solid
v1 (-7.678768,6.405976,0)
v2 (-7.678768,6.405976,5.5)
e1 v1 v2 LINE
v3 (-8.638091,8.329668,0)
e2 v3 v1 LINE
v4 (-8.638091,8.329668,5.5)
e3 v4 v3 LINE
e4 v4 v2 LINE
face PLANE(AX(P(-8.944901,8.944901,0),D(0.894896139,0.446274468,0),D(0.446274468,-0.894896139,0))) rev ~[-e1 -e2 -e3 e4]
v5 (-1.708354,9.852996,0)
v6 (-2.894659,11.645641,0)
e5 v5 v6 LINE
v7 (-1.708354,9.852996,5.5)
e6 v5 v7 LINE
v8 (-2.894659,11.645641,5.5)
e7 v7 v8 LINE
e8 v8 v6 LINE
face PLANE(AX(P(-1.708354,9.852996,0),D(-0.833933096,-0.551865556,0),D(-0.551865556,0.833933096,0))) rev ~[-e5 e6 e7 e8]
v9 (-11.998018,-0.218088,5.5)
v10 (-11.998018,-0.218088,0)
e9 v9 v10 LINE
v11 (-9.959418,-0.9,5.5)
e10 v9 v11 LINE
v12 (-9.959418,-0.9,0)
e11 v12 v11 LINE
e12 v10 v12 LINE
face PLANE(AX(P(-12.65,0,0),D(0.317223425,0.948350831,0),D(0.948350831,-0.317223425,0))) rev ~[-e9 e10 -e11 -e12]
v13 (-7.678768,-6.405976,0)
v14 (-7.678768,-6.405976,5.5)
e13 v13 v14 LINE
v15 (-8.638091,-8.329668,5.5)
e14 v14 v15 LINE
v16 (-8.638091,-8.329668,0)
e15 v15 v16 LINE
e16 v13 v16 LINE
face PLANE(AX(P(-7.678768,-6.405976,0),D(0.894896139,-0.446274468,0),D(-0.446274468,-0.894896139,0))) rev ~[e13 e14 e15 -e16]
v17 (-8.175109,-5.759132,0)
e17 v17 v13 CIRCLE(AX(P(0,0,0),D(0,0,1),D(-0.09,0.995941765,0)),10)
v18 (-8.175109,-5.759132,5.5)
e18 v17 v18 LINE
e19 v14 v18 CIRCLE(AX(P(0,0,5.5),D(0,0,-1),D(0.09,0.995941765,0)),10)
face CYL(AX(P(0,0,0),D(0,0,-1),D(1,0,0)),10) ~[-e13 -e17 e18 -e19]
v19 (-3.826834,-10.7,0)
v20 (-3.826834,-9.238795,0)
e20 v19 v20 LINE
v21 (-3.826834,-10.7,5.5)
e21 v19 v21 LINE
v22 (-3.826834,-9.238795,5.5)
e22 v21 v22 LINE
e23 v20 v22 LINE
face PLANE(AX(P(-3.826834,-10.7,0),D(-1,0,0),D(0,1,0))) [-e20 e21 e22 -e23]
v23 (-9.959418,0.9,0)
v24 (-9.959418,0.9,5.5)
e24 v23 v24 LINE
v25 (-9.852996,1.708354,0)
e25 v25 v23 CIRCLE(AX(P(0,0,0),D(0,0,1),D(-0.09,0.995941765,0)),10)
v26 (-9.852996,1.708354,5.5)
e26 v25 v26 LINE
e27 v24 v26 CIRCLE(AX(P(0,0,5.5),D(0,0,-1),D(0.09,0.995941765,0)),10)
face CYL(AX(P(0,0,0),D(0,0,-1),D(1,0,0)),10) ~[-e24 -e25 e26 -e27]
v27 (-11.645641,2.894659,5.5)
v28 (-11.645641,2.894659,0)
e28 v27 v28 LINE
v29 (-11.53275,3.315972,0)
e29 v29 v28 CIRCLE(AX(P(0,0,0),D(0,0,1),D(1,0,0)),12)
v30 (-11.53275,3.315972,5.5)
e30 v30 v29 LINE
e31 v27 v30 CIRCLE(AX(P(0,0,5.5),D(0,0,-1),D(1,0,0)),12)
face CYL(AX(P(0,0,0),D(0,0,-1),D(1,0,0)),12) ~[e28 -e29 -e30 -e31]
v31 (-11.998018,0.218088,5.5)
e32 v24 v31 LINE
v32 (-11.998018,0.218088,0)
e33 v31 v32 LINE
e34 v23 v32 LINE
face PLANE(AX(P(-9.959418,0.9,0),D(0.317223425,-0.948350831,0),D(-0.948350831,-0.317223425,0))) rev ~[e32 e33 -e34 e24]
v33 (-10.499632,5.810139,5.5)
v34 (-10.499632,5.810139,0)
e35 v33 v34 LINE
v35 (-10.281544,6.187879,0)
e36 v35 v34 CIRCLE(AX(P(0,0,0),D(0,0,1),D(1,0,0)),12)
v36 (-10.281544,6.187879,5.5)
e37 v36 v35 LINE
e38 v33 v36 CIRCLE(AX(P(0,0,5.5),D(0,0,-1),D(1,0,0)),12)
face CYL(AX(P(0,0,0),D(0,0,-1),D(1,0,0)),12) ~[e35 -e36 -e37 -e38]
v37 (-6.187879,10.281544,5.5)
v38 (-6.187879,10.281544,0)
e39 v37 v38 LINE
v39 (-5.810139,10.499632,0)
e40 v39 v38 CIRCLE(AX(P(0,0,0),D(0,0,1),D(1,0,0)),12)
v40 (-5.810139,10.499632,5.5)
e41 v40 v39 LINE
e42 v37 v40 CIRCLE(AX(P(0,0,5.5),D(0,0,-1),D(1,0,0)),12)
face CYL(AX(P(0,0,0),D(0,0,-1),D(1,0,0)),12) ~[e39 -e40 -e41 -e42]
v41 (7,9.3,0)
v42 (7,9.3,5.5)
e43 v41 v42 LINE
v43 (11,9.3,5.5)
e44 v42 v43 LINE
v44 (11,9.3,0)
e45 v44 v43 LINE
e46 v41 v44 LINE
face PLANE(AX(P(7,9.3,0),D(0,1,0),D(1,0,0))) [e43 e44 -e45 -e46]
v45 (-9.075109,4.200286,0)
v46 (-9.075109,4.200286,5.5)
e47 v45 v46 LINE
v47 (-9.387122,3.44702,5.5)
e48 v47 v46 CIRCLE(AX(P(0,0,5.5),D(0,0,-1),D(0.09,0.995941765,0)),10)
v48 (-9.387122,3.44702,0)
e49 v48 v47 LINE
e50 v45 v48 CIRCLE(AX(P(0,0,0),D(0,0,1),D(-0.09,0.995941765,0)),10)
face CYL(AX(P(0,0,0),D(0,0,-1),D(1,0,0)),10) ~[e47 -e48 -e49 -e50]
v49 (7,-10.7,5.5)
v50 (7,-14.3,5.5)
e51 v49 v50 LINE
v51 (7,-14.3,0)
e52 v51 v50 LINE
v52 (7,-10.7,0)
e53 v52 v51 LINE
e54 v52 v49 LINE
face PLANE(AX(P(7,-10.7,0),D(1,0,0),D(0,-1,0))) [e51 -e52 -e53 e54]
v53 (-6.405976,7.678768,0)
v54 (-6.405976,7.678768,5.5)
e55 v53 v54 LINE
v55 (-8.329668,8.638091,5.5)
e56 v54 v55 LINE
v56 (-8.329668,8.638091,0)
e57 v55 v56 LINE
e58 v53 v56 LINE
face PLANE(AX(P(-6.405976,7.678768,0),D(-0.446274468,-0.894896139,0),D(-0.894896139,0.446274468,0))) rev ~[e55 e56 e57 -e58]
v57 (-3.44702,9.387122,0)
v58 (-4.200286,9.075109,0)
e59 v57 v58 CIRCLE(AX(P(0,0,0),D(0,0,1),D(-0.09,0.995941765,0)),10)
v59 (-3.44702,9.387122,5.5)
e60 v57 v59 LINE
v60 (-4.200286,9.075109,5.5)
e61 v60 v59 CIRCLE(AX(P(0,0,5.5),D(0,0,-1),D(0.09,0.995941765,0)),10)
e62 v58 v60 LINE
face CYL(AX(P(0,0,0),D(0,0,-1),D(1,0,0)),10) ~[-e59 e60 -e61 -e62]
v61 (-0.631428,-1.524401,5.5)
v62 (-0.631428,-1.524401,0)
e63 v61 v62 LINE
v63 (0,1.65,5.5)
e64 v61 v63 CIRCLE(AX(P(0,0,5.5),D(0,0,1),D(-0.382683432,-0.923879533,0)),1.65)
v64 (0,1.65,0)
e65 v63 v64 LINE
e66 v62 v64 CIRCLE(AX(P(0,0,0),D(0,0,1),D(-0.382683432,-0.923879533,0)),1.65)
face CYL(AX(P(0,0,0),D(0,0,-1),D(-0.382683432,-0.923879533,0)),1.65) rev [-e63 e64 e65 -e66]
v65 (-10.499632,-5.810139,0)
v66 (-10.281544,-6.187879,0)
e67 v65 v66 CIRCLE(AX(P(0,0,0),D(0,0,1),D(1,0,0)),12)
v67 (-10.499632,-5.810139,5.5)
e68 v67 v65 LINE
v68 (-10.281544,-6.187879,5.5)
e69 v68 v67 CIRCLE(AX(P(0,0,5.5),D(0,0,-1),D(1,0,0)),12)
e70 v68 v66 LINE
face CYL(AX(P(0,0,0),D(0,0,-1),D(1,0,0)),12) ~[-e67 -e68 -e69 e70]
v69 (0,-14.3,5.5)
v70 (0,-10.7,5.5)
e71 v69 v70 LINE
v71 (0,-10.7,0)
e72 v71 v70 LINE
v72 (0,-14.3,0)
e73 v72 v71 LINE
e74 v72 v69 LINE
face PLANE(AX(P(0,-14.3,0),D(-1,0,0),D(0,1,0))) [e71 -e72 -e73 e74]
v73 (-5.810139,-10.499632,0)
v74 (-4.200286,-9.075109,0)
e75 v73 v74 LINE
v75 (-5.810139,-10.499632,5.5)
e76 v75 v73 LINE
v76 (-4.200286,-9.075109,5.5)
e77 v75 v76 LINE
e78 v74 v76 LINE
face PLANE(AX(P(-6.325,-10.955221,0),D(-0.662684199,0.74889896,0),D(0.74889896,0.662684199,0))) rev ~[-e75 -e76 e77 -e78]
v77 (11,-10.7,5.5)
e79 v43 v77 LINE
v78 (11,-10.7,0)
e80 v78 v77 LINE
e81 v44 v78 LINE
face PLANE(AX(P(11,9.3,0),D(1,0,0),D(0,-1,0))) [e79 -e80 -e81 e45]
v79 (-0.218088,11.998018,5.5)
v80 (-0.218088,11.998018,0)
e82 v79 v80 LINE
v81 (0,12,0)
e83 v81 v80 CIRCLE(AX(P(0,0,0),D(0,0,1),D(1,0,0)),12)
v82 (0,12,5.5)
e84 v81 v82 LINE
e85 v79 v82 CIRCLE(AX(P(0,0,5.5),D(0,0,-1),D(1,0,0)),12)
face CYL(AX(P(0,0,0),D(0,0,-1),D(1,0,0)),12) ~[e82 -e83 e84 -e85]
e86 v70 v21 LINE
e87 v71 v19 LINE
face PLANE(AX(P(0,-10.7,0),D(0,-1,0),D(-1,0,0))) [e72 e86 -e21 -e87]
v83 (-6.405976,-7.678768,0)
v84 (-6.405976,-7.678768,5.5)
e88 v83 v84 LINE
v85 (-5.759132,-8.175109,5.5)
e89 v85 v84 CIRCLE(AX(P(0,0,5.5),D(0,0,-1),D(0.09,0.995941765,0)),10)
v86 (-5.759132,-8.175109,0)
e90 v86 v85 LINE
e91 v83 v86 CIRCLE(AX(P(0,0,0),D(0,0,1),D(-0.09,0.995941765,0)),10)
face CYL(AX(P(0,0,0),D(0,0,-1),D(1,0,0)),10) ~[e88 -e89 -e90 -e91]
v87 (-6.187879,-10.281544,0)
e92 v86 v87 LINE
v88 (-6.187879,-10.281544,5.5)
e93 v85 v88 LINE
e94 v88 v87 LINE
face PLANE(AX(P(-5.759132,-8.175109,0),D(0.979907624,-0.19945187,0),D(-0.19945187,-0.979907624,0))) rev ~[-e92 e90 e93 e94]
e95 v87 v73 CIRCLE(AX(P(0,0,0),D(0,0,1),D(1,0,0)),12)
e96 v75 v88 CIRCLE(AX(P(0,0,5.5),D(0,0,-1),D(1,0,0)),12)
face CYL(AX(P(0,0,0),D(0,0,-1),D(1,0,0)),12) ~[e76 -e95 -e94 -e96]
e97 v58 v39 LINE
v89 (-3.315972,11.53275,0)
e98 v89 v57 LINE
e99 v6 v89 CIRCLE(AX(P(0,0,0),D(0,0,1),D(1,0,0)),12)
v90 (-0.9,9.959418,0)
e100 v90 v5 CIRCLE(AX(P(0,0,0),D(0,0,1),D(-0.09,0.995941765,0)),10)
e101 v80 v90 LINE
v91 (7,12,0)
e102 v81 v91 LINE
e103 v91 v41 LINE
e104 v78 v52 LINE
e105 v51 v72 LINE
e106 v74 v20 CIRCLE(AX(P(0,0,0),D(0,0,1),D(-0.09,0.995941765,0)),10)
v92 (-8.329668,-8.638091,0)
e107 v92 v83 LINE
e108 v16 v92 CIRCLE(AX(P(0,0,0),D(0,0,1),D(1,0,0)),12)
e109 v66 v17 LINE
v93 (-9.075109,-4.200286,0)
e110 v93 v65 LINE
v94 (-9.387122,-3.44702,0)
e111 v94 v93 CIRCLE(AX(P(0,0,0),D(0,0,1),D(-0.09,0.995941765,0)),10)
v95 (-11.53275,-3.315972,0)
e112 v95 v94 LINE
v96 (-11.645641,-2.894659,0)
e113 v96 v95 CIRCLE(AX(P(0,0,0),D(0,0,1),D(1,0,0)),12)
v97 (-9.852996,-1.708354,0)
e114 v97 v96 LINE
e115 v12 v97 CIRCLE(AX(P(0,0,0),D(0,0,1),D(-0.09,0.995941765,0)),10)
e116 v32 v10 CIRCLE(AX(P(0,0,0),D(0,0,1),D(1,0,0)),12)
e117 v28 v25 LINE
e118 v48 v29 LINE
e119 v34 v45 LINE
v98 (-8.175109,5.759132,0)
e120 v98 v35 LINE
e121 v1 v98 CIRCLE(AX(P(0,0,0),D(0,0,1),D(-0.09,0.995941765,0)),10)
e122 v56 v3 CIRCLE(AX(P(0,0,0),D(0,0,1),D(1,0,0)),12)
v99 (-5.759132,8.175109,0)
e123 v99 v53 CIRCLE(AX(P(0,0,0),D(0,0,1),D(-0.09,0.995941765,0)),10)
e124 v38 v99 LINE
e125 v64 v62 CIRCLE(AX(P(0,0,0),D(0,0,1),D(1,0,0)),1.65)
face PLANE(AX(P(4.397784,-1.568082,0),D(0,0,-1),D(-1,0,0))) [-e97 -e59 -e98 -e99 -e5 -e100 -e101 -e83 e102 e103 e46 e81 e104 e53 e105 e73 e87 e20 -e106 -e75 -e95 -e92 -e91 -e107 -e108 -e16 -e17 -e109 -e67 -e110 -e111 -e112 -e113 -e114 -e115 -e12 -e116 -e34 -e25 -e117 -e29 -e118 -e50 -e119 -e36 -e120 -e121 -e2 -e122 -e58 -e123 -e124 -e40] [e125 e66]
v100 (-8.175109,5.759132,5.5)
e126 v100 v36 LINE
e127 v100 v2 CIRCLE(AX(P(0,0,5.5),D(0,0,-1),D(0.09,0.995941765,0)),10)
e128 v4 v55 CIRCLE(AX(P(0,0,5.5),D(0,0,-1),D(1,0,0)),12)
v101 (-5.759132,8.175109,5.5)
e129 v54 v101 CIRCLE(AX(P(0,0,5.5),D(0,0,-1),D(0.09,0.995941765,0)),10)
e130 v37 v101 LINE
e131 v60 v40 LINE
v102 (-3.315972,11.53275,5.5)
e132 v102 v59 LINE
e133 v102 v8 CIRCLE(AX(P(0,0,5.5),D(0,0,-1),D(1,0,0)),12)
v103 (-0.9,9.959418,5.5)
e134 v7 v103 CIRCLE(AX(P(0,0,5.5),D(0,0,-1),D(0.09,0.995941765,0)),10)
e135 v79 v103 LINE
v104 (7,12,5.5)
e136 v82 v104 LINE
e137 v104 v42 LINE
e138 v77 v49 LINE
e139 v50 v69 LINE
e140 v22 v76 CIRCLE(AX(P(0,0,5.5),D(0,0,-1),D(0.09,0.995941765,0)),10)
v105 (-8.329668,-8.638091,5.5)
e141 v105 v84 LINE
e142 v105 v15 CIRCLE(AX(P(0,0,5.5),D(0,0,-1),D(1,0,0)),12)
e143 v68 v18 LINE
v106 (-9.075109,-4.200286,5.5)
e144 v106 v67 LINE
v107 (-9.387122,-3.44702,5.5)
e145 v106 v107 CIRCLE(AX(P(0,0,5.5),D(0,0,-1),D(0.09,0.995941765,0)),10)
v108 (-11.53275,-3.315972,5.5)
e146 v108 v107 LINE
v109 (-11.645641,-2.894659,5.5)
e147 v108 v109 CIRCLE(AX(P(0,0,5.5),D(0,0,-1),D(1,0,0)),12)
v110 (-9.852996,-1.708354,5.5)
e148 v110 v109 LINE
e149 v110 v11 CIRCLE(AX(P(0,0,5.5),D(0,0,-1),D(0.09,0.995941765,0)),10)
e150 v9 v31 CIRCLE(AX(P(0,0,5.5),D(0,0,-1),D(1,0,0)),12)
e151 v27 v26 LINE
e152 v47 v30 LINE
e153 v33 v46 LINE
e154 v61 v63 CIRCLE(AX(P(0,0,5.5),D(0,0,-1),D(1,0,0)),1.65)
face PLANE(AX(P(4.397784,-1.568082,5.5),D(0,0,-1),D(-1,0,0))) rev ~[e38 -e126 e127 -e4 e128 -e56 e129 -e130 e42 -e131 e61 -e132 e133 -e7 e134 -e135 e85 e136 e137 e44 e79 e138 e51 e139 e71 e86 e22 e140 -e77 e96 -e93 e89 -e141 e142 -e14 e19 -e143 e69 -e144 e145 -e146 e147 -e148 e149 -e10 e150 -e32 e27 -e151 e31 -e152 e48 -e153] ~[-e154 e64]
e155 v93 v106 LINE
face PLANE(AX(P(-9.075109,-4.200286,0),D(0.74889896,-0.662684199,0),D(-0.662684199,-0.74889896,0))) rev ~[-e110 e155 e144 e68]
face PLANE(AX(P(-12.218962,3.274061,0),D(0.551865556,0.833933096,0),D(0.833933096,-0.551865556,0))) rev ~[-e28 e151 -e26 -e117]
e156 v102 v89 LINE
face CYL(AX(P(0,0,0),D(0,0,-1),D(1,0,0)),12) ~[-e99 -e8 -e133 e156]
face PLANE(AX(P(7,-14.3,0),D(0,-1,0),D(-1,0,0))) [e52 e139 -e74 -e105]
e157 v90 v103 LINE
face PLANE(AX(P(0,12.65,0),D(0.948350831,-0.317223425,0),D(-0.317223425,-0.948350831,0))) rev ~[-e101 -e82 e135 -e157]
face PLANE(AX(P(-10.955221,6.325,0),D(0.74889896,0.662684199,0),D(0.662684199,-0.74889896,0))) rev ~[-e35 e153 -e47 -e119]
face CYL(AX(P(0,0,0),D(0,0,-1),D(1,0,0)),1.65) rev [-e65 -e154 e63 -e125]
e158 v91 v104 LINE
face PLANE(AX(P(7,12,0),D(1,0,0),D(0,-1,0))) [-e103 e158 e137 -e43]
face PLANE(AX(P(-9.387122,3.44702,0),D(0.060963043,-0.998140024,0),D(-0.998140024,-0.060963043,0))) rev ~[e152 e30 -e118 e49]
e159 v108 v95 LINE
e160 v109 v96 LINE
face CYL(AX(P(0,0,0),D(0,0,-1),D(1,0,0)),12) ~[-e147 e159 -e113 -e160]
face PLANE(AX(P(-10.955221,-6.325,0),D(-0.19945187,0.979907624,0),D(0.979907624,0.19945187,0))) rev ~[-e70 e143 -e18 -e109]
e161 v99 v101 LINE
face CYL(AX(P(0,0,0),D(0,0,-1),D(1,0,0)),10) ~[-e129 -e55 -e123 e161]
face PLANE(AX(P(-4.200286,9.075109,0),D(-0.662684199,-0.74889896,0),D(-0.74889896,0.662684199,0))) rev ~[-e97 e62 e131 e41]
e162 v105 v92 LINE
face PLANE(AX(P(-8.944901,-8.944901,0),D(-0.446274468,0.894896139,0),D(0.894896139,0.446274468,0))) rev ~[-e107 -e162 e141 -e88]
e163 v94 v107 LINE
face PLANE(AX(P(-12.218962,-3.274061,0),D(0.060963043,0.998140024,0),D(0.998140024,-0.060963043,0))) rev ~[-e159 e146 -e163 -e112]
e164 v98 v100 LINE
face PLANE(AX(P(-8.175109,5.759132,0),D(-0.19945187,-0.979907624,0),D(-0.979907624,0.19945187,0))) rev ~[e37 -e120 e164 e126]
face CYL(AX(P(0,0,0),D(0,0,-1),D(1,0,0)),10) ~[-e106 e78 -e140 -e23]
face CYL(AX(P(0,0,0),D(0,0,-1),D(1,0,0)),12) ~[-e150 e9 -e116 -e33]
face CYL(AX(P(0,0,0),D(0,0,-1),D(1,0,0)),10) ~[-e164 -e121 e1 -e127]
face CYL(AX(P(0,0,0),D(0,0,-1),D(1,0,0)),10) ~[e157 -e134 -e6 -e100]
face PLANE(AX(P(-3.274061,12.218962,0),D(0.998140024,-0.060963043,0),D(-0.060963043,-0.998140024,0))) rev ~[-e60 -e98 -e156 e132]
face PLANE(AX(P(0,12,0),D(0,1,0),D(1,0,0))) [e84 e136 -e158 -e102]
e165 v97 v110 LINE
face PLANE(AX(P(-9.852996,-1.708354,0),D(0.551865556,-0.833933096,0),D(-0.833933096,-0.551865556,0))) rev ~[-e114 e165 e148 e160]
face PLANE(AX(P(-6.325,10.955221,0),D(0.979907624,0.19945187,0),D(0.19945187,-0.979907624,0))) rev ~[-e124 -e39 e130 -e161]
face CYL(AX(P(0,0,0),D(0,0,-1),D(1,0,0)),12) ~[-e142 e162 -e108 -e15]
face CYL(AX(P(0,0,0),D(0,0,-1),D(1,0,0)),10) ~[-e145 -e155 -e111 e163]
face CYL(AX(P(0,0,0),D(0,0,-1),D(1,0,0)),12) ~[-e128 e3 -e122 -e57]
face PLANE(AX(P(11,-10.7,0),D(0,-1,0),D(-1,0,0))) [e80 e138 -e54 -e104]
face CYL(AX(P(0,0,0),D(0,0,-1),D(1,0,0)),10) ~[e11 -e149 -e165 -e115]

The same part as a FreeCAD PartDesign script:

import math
import FreeCAD as App
import Part
import Sketcher

V = App.Vector
Q = App.Units.Quantity

doc = App.newDocument("Part")
body = doc.addObject("PartDesign::Body", "Body")

# Sketch on XY plane
sketch1 = body.newObject("Sketcher::SketchObject", "Sketch")
sketch1.AttachmentSupport = (doc.getObject("XY_Plane"), [""])
sketch1.MapMode = "FlatFace"
sketch1.addGeometry(Part.Circle(V(0, 0, 0), V(0, 0, 1), 10), False)
sketch1.addConstraint(Sketcher.Constraint("Coincident", 0, 3, -1, 1))
sketch1.addConstraint(Sketcher.Constraint("Diameter", 0, Q("20 mm")))
pad1 = body.newObject("PartDesign::Pad", "Pad")
pad1.Profile = sketch1
pad1.Length = 5.5

# Sketch on XY plane
sketch2 = body.newObject("Sketcher::SketchObject", "Sketch001")
sketch2.AttachmentSupport = (doc.getObject("XY_Plane"), [""])
sketch2.MapMode = "FlatFace"
sketch2.addGeometry(Part.LineSegment(V(0, 12.65, 0), V(-0.9, 9.959418, 0)), False)
sketch2.addGeometry(Part.ArcOfCircle(Part.Circle(V(0, 0, 0), V(0, 0, 1), 10), math.radians(84.836393), math.radians(95.163607)), False)
sketch2.addGeometry(Part.LineSegment(V(0.9, 9.959418, 0), V(0, 12.65, 0)), False)
sketch2.addConstraint(Sketcher.Constraint("Coincident", 0, 2, 1, 2))
sketch2.addConstraint(Sketcher.Constraint("Coincident", 1, 1, 2, 1))
sketch2.addConstraint(Sketcher.Constraint("Coincident", 2, 2, 0, 1))
sketch2.addConstraint(Sketcher.Constraint("Coincident", 1, 3, -1, 1))
sketch2.addConstraint(Sketcher.Constraint("PointOnObject", 2, 2, -2))
sketch2.addConstraint(Sketcher.Constraint("Horizontal", 0, 2, 1, 1))
sketch2.addConstraint(Sketcher.Constraint("Radius", 1, Q("10 mm")))
sketch2.addConstraint(Sketcher.Constraint("DistanceX", 0, 2, -1, 1, Q("0.9 mm")))
sketch2.addConstraint(Sketcher.Constraint("DistanceY", -1, 1, 2, 2, Q("12.65 mm")))
pad2 = body.newObject("PartDesign::Pad", "Pad001")
pad2.Profile = sketch2
pad2.Length = 5.5
doc.recompute()

polarpattern = body.newObject("PartDesign::PolarPattern", "PolarPattern")
polarpattern.Originals = [pad2]
polarpattern.Axis = (doc.getObject("Z_Axis"), [""])
polarpattern.Angle = 360
polarpattern.Occurrences = 24
body.Tip = polarpattern

# Sketch on XY plane
sketch3 = body.newObject("Sketcher::SketchObject", "Sketch002")
sketch3.AttachmentSupport = (doc.getObject("XY_Plane"), [""])
sketch3.MapMode = "FlatFace"
sketch3.addGeometry(Part.Circle(V(0, 0, 0), V(0, 0, 1), 12.65), False)
sketch3.addGeometry(Part.Circle(V(0, 0, 0), V(0, 0, 1), 12), False)
sketch3.addConstraint(Sketcher.Constraint("Coincident", 0, 3, -1, 1))
sketch3.addConstraint(Sketcher.Constraint("Coincident", 1, 3, -1, 1))
sketch3.addConstraint(Sketcher.Constraint("Diameter", 1, Q("24 mm")))
sketch3.addConstraint(Sketcher.Constraint("Diameter", 0, Q("25.3 mm")))
pocket1 = body.newObject("PartDesign::Pocket", "Pocket")
pocket1.Profile = sketch3
pocket1.Length = 6
pocket1.Reversed = True

# Sketch on XY plane
sketch4 = body.newObject("Sketcher::SketchObject", "Sketch003")
sketch4.AttachmentSupport = (doc.getObject("XY_Plane"), [""])
sketch4.MapMode = "FlatFace"
sketch4.addGeometry(Part.LineSegment(V(0, 12, 0), V(0, 0, 0)), False)
sketch4.addGeometry(Part.LineSegment(V(0, 0, 0), V(-3.826834, -9.238795, 0)), False)
sketch4.addGeometry(Part.LineSegment(V(-3.826834, -9.238795, 0), V(-4.592201, -11.086554, 0)), False)
sketch4.addGeometry(Part.ArcOfCircle(Part.Circle(V(0, 0, 0), V(0, 0, 1), 12), math.radians(-112.5), math.radians(90)), False)
sketch4.addConstraint(Sketcher.Constraint("Coincident", 0, 2, 1, 1))
sketch4.addConstraint(Sketcher.Constraint("Coincident", 1, 2, 2, 1))
sketch4.addConstraint(Sketcher.Constraint("Coincident", 2, 2, 3, 1))
sketch4.addConstraint(Sketcher.Constraint("Coincident", 3, 2, 0, 1))
sketch4.addConstraint(Sketcher.Constraint("Vertical", 0))
sketch4.addConstraint(Sketcher.Constraint("Coincident", 3, 3, -1, 1))
sketch4.addConstraint(Sketcher.Constraint("Coincident", 0, 2, -1, 1))
sketch4.addConstraint(Sketcher.Constraint("Parallel", 1, 2))
sketch4.addConstraint(Sketcher.Constraint("Radius", 3, Q("12 mm")))
sketch4.addConstraint(Sketcher.Constraint("Distance", 1, Q("10 mm")))
sketch4.addConstraint(Sketcher.Constraint("Angle", 1, Q("-112.5 deg")))
pocket2 = body.newObject("PartDesign::Pocket", "Pocket001")
pocket2.Profile = sketch4
pocket2.Length = 6
pocket2.Reversed = True

# Sketch on XY plane
sketch5 = body.newObject("Sketcher::SketchObject", "Sketch004")
sketch5.AttachmentSupport = (doc.getObject("XY_Plane"), [""])
sketch5.MapMode = "FlatFace"
sketch5.addGeometry(Part.Circle(V(0, 0, 0), V(0, 0, 1), 1.65), False)
sketch5.addConstraint(Sketcher.Constraint("Coincident", 0, 3, -1, 1))
sketch5.addConstraint(Sketcher.Constraint("Diameter", 0, Q("3.3 mm")))
pocket3 = body.newObject("PartDesign::Pocket", "Pocket002")
pocket3.Profile = sketch5
pocket3.Length = 6
pocket3.Reversed = True

# Sketch on XY plane
sketch6 = body.newObject("Sketcher::SketchObject", "Sketch005")
sketch6.AttachmentSupport = (doc.getObject("XY_Plane"), [""])
sketch6.MapMode = "FlatFace"
sketch6.addGeometry(Part.LineSegment(V(0, 12, 0), V(0, 1.65, 0)), False)
sketch6.addGeometry(Part.ArcOfCircle(Part.Circle(V(0, 0, 0), V(0, 0, 1), 1.65), math.radians(-112.5), math.radians(90)), False)
sketch6.addGeometry(Part.LineSegment(V(-0.631428, -1.524401, 0), V(-3.826834, -9.238795, 0)), False)
sketch6.addGeometry(Part.LineSegment(V(-3.826834, -9.238795, 0), V(-3.826834, -10.7, 0)), False)
sketch6.addGeometry(Part.LineSegment(V(-3.826834, -10.7, 0), V(0, -10.7, 0)), False)
sketch6.addGeometry(Part.LineSegment(V(0, -10.7, 0), V(0, -14.3, 0)), False)
sketch6.addGeometry(Part.LineSegment(V(0, -14.3, 0), V(7, -14.3, 0)), False)
sketch6.addGeometry(Part.LineSegment(V(7, -14.3, 0), V(7, -10.7, 0)), False)
sketch6.addGeometry(Part.LineSegment(V(7, -10.7, 0), V(11, -10.7, 0)), False)
sketch6.addGeometry(Part.LineSegment(V(11, -10.7, 0), V(11, 9.3, 0)), False)
sketch6.addGeometry(Part.LineSegment(V(11, 9.3, 0), V(7, 9.3, 0)), False)
sketch6.addGeometry(Part.LineSegment(V(7, 9.3, 0), V(7, 12, 0)), False)
sketch6.addGeometry(Part.LineSegment(V(7, 12, 0), V(0, 12, 0)), False)
sketch6.addConstraint(Sketcher.Constraint("Coincident", 0, 2, 1, 2))
sketch6.addConstraint(Sketcher.Constraint("Coincident", 1, 1, 2, 1))
sketch6.addConstraint(Sketcher.Constraint("Coincident", 2, 2, 3, 1))
sketch6.addConstraint(Sketcher.Constraint("Coincident", 3, 2, 4, 1))
sketch6.addConstraint(Sketcher.Constraint("Coincident", 4, 2, 5, 1))
sketch6.addConstraint(Sketcher.Constraint("Coincident", 5, 2, 6, 1))
sketch6.addConstraint(Sketcher.Constraint("Coincident", 6, 2, 7, 1))
sketch6.addConstraint(Sketcher.Constraint("Coincident", 7, 2, 8, 1))
sketch6.addConstraint(Sketcher.Constraint("Coincident", 8, 2, 9, 1))
sketch6.addConstraint(Sketcher.Constraint("Coincident", 9, 2, 10, 1))
sketch6.addConstraint(Sketcher.Constraint("Coincident", 10, 2, 11, 1))
sketch6.addConstraint(Sketcher.Constraint("Coincident", 11, 2, 12, 1))
sketch6.addConstraint(Sketcher.Constraint("Coincident", 12, 2, 0, 1))
sketch6.addConstraint(Sketcher.Constraint("Vertical", 0))
sketch6.addConstraint(Sketcher.Constraint("Vertical", 3))
sketch6.addConstraint(Sketcher.Constraint("Horizontal", 4))
sketch6.addConstraint(Sketcher.Constraint("Vertical", 5))
sketch6.addConstraint(Sketcher.Constraint("Horizontal", 6))
sketch6.addConstraint(Sketcher.Constraint("Vertical", 7))
sketch6.addConstraint(Sketcher.Constraint("Horizontal", 8))
sketch6.addConstraint(Sketcher.Constraint("Vertical", 9))
sketch6.addConstraint(Sketcher.Constraint("Horizontal", 10))
sketch6.addConstraint(Sketcher.Constraint("Vertical", 11))
sketch6.addConstraint(Sketcher.Constraint("Horizontal", 12))
sketch6.addConstraint(Sketcher.Constraint("Coincident", 1, 3, -1, 1))
sketch6.addConstraint(Sketcher.Constraint("PointOnObject", 0, 2, -2))
sketch6.addConstraint(Sketcher.Constraint("PointOnObject", 4, 2, -2))
sketch6.addConstraint(Sketcher.Constraint("Horizontal", 4, 2, 7, 2))
sketch6.addConstraint(Sketcher.Constraint("Vertical", 7, 2, 10, 2))
sketch6.addConstraint(Sketcher.Constraint("DistanceX", 6, 1, 6, 2, Q("7 mm")))
sketch6.addConstraint(Sketcher.Constraint("DistanceX", 8, 1, 8, 2, Q("4 mm")))
sketch6.addConstraint(Sketcher.Constraint("DistanceY", 9, 1, 9, 2, Q("20 mm")))
sketch6.addConstraint(Sketcher.Constraint("Radius", 1, Q("1.65 mm")))
sketch6.addConstraint(Sketcher.Constraint("DistanceY", 5, 2, 5, 1, Q("3.6 mm")))
sketch6.addConstraint(Sketcher.Constraint("DistanceY", 11, 1, 11, 2, Q("2.7 mm")))
sketch6.addConstraint(Sketcher.Constraint("DistanceY", -1, 1, 11, 2, Q("12 mm")))
sketch6.addConstraint(Sketcher.Constraint("Angle", 2, Q("-112.5 deg")))
sketch6.addConstraint(Sketcher.Constraint("Distance", 2, Q("8.35 mm")))
sketch6.addConstraint(Sketcher.Constraint("DistanceY", 1, 1, -1, 1, Q("1.524401 mm")))
pad3 = body.newObject("PartDesign::Pad", "Pad002")
pad3.Profile = sketch6
pad3.Length = 5.5

doc.recompute()
